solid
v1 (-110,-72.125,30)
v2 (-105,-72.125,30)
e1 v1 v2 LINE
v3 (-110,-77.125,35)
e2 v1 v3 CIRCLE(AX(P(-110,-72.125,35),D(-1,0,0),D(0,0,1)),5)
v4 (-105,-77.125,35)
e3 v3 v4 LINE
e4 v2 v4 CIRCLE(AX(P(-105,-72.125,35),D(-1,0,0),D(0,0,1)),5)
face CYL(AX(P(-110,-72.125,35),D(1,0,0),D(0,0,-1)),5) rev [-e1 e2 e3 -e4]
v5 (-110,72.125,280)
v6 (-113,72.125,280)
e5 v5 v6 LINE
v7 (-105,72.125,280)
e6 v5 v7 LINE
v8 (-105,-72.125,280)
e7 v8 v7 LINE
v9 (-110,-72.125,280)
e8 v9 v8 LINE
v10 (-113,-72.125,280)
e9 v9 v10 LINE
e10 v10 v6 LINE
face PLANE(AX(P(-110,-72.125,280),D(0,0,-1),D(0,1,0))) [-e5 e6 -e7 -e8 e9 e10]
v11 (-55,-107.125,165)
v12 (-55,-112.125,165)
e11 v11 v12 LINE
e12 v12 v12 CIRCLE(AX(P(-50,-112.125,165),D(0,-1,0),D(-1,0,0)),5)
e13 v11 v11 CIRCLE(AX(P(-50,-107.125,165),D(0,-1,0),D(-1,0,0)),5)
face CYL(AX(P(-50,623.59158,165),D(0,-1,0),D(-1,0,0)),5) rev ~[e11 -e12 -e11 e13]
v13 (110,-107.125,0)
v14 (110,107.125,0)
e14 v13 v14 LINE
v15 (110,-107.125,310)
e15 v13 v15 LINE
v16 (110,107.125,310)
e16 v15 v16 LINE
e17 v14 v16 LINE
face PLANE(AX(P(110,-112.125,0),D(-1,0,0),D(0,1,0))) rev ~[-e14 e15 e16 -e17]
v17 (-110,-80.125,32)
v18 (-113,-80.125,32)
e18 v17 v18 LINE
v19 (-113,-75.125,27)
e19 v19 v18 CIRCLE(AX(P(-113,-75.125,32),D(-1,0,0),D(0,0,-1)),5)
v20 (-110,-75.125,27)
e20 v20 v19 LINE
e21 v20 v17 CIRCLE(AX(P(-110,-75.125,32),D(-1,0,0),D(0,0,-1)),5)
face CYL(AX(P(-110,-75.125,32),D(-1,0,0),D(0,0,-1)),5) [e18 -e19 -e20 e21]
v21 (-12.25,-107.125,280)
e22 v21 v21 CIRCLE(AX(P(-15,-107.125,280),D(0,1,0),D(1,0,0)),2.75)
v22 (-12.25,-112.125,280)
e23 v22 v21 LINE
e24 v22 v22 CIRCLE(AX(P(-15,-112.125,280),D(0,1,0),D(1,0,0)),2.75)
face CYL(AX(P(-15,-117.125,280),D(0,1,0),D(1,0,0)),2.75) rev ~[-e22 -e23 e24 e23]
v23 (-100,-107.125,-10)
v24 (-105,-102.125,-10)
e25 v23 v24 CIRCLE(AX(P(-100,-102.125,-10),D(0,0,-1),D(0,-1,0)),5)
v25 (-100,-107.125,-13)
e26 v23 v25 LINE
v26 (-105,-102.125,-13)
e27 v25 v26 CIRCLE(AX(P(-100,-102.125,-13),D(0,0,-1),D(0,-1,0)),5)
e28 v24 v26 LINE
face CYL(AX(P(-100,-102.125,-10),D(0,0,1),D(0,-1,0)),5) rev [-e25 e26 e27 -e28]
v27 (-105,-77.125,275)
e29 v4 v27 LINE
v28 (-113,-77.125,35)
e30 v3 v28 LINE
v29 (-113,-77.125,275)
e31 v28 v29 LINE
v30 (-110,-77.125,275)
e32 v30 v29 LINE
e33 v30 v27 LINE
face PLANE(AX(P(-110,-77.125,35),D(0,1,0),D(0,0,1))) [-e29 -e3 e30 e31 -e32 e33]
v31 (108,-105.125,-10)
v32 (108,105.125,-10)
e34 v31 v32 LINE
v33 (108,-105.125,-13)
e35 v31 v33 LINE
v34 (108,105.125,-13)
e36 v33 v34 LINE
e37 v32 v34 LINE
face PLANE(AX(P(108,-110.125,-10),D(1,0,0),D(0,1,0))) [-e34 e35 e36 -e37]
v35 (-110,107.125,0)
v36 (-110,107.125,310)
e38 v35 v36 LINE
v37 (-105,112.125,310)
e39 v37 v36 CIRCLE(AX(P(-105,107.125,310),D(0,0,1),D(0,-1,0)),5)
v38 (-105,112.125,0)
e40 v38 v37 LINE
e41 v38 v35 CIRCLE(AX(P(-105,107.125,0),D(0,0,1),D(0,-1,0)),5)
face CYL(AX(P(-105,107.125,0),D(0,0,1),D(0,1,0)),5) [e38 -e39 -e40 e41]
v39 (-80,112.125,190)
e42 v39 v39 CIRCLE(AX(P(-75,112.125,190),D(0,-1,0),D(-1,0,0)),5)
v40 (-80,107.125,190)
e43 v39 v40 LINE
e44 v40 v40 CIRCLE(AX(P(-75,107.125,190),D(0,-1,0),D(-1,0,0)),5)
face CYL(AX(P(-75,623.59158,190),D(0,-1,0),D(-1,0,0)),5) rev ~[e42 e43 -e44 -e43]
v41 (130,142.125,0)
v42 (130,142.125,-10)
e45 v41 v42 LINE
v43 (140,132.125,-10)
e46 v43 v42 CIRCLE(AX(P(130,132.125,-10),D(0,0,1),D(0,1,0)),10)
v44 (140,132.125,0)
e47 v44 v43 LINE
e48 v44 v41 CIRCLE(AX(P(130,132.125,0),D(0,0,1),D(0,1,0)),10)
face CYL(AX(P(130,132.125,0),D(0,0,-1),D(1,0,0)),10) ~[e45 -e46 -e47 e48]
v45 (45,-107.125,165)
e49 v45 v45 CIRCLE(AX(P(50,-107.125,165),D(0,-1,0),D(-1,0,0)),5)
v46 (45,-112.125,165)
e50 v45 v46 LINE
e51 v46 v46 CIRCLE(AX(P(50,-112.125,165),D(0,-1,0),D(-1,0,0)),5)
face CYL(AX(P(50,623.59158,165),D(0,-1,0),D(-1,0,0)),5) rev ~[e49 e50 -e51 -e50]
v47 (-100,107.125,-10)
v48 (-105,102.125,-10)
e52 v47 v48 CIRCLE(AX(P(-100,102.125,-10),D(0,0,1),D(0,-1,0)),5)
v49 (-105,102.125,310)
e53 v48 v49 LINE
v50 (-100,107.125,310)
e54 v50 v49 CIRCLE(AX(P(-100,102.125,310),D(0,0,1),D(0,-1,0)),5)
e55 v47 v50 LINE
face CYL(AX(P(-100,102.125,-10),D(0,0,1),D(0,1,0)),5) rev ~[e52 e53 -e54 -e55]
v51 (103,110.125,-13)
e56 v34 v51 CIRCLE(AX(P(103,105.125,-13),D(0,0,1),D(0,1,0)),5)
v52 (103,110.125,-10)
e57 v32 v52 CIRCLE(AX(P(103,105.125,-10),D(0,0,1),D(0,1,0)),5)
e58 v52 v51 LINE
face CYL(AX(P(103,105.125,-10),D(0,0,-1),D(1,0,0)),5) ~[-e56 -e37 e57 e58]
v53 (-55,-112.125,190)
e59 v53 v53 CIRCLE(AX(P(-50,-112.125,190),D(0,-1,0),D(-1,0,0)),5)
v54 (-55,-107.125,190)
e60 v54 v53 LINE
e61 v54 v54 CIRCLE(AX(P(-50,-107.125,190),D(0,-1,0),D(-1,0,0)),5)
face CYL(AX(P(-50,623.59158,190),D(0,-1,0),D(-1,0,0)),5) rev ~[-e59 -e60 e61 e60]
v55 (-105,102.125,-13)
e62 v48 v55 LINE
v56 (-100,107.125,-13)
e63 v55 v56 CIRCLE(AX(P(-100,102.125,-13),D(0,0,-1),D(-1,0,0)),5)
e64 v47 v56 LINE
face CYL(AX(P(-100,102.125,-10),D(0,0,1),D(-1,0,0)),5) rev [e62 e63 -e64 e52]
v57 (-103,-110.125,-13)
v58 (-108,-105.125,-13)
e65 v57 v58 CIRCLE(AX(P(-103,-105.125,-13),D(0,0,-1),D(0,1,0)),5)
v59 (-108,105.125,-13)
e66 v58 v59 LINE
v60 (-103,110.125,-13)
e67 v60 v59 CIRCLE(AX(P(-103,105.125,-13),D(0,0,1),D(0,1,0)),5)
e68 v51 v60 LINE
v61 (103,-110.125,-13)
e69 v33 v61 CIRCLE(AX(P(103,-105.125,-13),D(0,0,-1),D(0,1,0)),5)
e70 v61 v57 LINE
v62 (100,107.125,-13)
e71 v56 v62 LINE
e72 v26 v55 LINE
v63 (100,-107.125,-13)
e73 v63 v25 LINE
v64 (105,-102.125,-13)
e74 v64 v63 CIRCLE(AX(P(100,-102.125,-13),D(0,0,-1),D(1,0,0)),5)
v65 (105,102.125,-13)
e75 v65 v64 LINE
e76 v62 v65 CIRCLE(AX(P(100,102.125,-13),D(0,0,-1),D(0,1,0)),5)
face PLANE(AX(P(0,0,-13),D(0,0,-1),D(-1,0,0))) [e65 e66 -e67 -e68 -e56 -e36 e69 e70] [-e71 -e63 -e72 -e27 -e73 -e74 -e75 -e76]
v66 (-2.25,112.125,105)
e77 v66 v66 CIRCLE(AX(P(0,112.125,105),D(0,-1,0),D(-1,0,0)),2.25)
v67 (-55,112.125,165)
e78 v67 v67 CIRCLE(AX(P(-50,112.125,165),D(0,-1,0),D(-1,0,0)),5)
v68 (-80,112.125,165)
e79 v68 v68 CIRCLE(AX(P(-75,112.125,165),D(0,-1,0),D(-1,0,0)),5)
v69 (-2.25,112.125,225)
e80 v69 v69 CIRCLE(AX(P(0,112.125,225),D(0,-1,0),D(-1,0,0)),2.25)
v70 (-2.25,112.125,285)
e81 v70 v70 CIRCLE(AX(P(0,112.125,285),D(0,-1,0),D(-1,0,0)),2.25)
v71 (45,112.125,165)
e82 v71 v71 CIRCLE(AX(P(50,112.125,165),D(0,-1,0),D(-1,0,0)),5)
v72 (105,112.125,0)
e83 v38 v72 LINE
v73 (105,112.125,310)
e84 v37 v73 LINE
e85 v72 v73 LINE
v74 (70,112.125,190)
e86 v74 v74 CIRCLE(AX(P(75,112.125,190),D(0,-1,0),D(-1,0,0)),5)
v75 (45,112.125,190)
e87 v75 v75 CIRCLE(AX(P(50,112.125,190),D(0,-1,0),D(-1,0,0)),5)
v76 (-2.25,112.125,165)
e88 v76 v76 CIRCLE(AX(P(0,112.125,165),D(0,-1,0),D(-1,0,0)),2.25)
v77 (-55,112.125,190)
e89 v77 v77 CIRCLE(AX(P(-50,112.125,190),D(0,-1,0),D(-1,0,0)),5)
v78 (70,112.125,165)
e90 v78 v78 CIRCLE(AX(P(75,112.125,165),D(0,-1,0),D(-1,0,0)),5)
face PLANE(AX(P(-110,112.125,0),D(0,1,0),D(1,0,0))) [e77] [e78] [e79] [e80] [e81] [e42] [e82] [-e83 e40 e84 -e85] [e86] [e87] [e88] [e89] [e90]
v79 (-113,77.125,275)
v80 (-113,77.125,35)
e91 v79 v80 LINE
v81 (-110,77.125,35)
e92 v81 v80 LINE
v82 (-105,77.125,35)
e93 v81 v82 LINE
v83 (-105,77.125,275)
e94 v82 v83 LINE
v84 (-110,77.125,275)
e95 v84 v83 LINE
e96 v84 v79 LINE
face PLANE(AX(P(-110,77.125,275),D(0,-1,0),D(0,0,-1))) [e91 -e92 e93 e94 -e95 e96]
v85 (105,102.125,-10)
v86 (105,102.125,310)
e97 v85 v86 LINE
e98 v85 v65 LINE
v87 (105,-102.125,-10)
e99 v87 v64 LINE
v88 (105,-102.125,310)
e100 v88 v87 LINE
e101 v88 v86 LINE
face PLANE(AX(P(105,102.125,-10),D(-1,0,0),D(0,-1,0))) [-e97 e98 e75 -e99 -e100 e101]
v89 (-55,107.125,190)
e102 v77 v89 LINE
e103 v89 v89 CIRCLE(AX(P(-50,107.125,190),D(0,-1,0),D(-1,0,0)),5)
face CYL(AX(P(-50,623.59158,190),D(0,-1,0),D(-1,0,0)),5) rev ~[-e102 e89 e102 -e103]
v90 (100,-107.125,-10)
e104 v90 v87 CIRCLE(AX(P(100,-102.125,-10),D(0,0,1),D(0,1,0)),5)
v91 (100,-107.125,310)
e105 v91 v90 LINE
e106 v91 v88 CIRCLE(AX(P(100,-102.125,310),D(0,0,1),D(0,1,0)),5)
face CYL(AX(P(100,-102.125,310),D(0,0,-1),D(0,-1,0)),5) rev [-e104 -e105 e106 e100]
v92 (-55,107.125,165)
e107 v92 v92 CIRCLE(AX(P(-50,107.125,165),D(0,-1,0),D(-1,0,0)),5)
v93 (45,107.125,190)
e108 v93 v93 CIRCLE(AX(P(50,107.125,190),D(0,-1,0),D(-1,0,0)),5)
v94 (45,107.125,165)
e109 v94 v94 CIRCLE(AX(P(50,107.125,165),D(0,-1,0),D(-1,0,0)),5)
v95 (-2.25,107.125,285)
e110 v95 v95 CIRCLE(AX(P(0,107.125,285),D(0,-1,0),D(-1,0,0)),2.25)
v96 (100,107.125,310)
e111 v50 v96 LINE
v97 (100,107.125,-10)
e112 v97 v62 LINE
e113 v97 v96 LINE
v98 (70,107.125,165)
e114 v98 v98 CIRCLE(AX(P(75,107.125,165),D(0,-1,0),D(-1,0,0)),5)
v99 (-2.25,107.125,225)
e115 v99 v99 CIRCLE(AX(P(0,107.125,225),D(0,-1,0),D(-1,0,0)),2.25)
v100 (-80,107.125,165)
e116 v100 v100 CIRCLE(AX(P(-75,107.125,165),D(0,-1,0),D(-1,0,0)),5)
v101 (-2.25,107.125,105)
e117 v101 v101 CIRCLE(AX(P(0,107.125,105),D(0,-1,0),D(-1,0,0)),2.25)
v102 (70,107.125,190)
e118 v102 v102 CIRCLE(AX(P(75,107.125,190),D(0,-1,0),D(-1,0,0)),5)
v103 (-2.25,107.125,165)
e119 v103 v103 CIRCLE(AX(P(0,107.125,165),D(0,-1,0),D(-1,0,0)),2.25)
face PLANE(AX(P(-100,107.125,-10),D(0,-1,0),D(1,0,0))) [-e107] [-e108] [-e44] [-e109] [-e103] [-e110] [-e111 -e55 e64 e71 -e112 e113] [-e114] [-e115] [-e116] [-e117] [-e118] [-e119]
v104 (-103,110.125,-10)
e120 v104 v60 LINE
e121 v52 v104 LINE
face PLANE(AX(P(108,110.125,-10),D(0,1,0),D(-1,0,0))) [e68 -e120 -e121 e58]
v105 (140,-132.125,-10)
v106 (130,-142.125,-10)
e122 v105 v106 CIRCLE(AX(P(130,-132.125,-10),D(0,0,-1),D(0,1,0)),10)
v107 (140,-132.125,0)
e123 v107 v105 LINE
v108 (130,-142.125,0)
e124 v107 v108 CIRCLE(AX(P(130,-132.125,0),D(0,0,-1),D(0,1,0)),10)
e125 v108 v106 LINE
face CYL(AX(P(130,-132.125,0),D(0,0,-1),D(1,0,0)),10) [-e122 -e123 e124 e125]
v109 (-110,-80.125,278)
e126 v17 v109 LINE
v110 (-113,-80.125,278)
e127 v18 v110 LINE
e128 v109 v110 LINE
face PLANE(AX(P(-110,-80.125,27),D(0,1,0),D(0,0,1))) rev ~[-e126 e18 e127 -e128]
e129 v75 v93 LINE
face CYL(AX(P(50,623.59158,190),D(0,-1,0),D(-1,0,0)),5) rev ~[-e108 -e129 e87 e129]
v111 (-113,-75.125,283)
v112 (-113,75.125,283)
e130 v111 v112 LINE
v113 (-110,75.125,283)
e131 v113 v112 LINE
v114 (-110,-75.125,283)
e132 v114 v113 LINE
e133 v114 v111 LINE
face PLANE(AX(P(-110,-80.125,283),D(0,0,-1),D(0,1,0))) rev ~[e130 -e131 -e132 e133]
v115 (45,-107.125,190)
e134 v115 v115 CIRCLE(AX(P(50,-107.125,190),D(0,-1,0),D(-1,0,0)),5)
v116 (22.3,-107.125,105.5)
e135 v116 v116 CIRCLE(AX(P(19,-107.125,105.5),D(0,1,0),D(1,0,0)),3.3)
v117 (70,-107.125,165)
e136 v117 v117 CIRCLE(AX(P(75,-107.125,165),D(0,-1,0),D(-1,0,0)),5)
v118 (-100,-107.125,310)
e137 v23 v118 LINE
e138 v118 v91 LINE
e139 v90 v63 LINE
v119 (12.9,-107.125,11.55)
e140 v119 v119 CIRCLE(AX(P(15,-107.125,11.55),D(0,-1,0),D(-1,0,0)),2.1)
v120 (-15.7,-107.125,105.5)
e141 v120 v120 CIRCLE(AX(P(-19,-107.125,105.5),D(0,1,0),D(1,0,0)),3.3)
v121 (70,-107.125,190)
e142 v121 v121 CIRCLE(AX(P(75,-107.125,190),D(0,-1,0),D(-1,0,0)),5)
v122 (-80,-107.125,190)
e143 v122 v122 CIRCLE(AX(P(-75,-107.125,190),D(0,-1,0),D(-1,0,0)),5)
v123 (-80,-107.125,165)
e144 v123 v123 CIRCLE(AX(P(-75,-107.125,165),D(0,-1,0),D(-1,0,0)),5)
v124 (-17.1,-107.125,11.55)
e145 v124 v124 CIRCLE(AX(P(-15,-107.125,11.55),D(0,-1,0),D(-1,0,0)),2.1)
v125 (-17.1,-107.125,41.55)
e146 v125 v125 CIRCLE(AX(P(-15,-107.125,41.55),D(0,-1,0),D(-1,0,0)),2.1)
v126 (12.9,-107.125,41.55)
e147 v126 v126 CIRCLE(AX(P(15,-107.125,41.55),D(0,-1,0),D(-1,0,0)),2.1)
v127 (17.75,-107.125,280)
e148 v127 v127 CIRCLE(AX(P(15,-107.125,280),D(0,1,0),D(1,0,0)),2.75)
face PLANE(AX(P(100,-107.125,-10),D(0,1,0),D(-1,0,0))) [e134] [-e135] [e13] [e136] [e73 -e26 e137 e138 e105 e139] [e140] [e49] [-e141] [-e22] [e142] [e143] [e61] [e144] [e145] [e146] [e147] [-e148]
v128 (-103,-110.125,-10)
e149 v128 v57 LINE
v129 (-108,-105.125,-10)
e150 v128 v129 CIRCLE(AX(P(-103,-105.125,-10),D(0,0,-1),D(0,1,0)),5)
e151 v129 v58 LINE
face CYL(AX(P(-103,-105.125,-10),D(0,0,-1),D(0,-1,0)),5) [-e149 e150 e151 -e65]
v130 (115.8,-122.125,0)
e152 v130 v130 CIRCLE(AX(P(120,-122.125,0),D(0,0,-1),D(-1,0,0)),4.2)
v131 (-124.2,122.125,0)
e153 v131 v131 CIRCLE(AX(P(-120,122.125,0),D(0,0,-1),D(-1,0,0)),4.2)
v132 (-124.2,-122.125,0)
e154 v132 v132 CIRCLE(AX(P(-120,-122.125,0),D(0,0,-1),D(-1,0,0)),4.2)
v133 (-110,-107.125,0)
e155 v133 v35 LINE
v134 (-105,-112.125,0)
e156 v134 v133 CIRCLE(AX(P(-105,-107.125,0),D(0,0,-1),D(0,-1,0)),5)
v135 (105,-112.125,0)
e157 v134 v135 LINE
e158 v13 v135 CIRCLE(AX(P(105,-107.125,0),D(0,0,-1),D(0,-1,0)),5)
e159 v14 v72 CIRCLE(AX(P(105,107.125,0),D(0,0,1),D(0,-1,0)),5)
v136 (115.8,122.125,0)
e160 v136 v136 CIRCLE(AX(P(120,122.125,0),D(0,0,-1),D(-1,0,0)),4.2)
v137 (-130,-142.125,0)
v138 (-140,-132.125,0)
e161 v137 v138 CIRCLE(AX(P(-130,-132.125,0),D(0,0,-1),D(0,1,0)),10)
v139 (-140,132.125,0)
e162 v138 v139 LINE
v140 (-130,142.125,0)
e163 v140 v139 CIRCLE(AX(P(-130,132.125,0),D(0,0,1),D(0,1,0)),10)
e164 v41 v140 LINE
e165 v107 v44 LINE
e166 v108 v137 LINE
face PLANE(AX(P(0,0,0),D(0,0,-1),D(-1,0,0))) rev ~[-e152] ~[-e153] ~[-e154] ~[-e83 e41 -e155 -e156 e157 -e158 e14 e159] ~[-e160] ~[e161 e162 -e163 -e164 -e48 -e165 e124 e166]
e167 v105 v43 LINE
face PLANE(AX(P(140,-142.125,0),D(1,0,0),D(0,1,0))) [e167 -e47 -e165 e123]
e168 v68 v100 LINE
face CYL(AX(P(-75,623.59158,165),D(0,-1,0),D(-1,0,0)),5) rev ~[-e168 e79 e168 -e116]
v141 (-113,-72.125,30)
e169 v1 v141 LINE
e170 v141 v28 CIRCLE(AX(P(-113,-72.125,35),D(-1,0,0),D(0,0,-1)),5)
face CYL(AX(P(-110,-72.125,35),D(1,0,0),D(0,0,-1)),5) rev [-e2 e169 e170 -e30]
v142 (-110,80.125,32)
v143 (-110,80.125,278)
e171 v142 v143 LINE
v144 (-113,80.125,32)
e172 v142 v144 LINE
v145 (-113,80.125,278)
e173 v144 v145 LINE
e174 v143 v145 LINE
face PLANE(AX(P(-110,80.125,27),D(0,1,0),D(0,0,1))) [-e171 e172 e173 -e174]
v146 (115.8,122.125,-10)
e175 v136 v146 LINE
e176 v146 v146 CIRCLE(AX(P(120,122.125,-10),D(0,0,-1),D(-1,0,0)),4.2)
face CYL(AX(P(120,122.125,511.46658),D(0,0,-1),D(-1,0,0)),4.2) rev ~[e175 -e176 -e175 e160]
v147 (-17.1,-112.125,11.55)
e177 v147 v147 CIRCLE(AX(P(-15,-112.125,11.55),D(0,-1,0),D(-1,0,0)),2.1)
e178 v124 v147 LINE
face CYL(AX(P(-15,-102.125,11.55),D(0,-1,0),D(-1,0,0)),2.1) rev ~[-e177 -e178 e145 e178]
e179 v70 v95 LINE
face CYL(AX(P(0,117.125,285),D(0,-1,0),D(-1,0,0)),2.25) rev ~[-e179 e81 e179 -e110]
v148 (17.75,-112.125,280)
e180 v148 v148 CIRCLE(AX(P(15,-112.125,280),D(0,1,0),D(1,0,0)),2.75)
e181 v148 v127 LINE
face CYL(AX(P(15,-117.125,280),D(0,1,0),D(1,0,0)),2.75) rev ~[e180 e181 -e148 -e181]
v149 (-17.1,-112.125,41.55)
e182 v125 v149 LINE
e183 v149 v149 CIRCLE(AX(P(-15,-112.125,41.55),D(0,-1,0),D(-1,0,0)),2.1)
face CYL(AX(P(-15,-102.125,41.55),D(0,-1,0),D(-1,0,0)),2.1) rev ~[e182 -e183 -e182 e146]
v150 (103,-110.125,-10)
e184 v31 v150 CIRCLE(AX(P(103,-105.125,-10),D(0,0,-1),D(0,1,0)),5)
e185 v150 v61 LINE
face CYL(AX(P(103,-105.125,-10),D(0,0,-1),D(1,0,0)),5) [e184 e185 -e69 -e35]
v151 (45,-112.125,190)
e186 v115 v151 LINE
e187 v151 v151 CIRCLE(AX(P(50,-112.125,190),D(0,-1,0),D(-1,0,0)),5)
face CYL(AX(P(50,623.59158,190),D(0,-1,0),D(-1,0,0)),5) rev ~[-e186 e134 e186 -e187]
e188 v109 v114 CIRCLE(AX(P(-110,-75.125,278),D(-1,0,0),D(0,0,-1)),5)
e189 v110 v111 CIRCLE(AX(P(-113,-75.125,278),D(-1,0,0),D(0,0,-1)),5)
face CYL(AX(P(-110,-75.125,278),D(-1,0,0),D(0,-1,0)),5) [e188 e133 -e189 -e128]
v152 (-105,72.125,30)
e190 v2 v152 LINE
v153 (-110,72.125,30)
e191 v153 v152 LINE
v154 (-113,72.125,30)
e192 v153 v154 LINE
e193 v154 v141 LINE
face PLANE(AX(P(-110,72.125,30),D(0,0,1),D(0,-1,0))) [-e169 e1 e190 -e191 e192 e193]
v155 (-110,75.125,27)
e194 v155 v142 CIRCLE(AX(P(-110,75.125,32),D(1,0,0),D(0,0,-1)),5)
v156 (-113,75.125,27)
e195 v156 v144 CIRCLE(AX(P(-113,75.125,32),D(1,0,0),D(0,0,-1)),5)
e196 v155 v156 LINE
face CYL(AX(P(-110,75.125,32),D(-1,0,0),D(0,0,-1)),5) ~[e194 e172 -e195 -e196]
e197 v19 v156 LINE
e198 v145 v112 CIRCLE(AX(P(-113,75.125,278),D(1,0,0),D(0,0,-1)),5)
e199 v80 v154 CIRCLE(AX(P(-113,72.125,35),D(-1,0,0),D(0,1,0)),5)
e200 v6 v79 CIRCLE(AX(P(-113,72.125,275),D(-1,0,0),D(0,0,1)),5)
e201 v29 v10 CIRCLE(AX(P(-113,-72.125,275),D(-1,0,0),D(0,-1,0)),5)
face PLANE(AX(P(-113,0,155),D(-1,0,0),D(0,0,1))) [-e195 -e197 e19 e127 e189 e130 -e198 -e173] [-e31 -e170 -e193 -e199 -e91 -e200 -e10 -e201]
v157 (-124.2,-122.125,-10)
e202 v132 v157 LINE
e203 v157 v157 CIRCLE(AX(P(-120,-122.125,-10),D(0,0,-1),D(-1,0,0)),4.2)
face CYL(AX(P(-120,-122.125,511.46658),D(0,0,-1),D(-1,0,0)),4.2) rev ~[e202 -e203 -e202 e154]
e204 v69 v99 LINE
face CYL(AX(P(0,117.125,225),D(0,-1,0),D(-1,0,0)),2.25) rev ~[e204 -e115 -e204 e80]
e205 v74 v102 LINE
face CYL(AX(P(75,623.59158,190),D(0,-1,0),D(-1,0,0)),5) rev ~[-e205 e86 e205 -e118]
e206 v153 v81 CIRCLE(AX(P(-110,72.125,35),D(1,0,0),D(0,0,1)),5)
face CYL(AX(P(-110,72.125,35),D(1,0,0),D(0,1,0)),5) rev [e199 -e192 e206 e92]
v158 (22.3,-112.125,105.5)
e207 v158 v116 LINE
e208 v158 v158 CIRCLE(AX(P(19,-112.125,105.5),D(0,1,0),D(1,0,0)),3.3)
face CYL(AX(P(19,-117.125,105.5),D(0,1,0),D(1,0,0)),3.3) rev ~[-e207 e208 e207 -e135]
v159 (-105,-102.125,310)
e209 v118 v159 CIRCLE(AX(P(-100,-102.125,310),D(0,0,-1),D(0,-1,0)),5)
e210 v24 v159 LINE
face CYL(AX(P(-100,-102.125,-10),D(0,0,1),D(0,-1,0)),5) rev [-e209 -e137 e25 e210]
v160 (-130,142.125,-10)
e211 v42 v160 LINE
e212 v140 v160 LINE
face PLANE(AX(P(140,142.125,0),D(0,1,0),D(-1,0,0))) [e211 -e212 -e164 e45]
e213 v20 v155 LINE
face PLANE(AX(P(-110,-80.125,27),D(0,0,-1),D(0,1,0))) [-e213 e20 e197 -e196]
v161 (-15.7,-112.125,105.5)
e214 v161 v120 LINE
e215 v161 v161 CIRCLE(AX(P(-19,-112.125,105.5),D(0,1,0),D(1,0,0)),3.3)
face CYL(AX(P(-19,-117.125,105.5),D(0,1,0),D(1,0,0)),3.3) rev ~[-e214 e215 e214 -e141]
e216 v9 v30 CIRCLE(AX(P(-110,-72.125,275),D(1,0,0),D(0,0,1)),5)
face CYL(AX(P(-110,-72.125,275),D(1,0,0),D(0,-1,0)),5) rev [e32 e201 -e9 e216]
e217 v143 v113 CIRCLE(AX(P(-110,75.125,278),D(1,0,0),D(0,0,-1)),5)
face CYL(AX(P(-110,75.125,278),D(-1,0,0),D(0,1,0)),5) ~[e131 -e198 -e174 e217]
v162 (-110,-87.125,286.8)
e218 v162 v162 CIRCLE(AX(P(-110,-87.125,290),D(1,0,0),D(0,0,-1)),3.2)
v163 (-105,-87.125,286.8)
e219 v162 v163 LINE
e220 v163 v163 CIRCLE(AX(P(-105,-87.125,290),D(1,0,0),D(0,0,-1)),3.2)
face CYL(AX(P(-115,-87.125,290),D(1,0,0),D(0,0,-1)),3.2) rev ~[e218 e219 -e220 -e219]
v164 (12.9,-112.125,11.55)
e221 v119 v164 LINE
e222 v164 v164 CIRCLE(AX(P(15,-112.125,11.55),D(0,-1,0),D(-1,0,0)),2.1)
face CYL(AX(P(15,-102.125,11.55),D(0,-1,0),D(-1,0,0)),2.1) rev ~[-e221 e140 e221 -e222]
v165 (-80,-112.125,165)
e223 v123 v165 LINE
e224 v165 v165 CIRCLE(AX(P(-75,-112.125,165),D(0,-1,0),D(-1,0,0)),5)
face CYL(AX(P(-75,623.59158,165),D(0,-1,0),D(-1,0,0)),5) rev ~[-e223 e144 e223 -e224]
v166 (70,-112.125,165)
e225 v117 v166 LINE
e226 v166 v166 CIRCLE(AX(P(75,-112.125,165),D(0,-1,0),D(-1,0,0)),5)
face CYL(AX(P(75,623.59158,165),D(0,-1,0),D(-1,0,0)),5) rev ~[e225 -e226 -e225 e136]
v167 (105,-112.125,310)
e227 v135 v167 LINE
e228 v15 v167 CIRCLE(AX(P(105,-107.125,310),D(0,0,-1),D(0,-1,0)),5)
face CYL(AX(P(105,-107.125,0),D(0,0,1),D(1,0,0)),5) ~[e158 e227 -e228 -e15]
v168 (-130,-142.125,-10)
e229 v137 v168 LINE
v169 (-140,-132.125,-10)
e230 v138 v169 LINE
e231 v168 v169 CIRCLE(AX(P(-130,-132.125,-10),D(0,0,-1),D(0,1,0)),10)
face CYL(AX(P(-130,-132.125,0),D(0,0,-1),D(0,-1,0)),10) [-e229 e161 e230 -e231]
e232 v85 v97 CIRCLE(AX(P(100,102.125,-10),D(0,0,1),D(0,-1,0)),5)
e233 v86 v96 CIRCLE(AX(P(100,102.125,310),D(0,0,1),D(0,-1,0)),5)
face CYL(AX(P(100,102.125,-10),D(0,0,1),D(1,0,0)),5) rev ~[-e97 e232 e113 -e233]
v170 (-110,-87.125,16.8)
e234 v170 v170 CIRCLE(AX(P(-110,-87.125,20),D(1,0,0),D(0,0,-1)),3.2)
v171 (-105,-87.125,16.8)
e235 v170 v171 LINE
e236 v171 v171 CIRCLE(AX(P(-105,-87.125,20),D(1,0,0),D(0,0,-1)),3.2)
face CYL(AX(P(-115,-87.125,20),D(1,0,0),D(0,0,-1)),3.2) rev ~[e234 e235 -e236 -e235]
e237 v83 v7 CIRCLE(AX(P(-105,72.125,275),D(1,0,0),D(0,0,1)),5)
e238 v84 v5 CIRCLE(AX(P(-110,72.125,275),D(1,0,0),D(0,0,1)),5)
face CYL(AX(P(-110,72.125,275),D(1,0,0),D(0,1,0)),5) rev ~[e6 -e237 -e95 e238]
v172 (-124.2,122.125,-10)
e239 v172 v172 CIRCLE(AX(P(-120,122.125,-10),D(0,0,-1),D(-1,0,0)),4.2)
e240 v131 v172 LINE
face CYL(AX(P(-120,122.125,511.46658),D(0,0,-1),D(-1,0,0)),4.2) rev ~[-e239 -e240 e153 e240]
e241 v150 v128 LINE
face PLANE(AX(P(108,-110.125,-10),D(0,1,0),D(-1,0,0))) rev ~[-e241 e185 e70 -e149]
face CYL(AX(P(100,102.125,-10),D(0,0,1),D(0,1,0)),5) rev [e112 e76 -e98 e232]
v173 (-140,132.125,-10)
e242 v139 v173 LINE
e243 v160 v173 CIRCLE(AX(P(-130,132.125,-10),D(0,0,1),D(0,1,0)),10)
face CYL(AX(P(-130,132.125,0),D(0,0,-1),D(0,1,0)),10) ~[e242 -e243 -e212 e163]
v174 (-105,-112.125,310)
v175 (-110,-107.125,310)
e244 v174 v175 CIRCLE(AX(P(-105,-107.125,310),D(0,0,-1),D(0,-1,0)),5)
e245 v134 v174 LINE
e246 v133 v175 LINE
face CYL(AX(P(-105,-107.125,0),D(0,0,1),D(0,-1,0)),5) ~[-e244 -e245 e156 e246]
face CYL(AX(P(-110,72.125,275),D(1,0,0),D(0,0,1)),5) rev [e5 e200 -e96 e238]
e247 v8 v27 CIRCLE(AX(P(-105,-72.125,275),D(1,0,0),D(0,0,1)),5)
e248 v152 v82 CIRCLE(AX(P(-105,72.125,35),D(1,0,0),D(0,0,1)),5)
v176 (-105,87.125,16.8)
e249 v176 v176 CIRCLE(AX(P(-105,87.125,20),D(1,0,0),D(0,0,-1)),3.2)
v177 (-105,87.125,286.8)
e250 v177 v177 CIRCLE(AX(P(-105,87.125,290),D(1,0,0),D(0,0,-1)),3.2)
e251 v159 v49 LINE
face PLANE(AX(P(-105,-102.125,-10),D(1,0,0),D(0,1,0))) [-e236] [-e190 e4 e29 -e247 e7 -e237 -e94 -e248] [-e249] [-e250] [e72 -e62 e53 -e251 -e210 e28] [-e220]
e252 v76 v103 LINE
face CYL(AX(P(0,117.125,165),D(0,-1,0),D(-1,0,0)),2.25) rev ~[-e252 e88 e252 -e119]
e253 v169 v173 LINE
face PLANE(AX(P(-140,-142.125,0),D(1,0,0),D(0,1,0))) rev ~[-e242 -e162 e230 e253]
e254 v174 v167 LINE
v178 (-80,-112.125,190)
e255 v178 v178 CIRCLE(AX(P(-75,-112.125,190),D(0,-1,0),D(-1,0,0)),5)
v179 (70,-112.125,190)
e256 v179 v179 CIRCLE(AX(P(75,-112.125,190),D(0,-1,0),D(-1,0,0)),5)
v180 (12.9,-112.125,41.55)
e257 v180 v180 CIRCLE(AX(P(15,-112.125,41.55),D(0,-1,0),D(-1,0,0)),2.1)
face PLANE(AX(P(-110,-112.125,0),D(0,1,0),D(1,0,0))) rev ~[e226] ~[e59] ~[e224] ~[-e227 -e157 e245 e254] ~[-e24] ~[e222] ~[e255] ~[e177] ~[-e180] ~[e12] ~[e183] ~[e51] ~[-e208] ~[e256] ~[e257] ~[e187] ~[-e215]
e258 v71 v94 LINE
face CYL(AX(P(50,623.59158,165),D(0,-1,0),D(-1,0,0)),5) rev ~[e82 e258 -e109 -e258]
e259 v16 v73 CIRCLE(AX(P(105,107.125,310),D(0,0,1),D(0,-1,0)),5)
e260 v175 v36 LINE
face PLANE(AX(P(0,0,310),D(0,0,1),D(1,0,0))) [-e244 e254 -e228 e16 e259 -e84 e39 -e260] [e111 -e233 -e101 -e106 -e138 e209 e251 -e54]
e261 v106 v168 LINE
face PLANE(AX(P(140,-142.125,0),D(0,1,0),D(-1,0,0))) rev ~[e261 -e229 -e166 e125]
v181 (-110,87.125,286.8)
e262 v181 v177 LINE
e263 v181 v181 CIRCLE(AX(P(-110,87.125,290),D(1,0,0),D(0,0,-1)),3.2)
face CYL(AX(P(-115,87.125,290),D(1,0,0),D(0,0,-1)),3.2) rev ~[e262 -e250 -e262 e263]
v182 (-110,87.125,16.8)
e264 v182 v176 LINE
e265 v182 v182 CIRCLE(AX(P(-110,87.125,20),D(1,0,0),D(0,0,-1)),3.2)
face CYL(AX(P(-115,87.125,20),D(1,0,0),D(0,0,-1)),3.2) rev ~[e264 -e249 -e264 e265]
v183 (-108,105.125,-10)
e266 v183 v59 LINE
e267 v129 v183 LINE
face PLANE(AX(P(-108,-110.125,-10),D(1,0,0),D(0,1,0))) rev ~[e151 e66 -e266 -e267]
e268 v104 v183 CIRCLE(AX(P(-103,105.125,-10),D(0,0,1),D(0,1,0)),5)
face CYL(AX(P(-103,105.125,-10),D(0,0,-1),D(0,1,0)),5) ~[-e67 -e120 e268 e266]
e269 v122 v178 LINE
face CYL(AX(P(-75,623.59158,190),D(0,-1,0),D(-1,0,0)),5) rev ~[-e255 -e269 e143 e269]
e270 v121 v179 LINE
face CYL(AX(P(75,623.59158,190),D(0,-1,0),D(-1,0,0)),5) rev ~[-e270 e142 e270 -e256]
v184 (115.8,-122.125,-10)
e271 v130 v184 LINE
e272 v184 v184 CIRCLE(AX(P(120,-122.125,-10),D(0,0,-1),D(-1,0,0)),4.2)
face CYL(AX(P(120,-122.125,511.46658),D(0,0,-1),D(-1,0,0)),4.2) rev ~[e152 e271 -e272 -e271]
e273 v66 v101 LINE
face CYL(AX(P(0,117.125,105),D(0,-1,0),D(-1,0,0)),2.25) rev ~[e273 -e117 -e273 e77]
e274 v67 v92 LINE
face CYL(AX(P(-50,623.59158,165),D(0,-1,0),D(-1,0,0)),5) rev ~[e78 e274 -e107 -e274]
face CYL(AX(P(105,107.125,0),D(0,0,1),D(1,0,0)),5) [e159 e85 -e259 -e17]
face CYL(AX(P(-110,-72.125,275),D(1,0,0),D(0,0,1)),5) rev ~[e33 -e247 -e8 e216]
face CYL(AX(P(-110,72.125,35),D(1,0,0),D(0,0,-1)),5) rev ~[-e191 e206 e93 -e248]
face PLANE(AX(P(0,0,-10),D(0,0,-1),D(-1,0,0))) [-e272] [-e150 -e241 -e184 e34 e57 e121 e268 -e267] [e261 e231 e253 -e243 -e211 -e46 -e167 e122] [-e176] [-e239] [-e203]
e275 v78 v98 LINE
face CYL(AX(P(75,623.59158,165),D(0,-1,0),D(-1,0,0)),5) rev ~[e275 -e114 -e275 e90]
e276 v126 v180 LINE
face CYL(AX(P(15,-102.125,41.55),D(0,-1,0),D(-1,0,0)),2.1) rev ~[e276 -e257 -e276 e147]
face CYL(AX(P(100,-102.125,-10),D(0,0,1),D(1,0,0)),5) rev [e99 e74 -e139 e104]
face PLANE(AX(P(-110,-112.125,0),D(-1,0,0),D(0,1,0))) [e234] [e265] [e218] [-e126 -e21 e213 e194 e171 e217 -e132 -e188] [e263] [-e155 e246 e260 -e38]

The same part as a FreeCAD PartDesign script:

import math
import FreeCAD as App
import Part
import Sketcher


def edges_at(feature, points):
    """Names of the edges that pass closest to the given points."""
    edges = feature.Shape.Edges
    near = lambda p: min(range(len(edges)), key=lambda i: edges[i].distToShape(Part.Vertex(*p))[0])
    return sorted({f"Edge{near(p) + 1}" for p in points})

doc = App.newDocument("Part")
body = doc.addObject("PartDesign::Body", "Body")

# Sketch on XY plane
sketch1 = body.newObject("Sketcher::SketchObject", "Sketch")
sketch1.AttachmentSupport = (doc.getObject("XY_Plane"), [""])
sketch1.MapMode = "FlatFace"
sketch1.addGeometry([
    Part.LineSegment(App.Vector(-110, 112, 0), App.Vector(-110, -112, 0)),  # 0
    Part.LineSegment(App.Vector(-110, -112, 0), App.Vector(110, -112, 0)),  # 1
    Part.LineSegment(App.Vector(110, -112, 0), App.Vector(110, 112, 0)),  # 2
    Part.LineSegment(App.Vector(110, 112, 0), App.Vector(-110, 112, 0)),  # 3
    Part.LineSegment(App.Vector(105, -107, 0), App.Vector(-105, -107, 0)),  # 4
    Part.LineSegment(App.Vector(-105, -107, 0), App.Vector(-105, 107, 0)),  # 5
    Part.LineSegment(App.Vector(-105, 107, 0), App.Vector(105, 107, 0)),  # 6
    Part.LineSegment(App.Vector(105, 107, 0), App.Vector(105, -107, 0)),  # 7
], False)
sketch1.addConstraint([
    Sketcher.Constraint("Coincident", 0, 2, 1, 1),
    Sketcher.Constraint("Coincident", 1, 2, 2, 1),
    Sketcher.Constraint("Coincident", 2, 2, 3, 1),
    Sketcher.Constraint("Coincident", 3, 2, 0, 1),
    Sketcher.Constraint("Coincident", 4, 2, 5, 1),
    Sketcher.Constraint("Coincident", 5, 2, 6, 1),
    Sketcher.Constraint("Coincident", 6, 2, 7, 1),
    Sketcher.Constraint("Coincident", 7, 2, 4, 1),
    Sketcher.Constraint("Vertical", 0),
    Sketcher.Constraint("Horizontal", 1),
    Sketcher.Constraint("Vertical", 2),
    Sketcher.Constraint("Horizontal", 3),
    Sketcher.Constraint("Horizontal", 4),
    Sketcher.Constraint("Vertical", 5),
    Sketcher.Constraint("Horizontal", 6),
    Sketcher.Constraint("Vertical", 7),
    Sketcher.Constraint("Symmetric", 0, 2, 2, 2, -1, 1),
    Sketcher.Constraint("Symmetric", 4, 2, 6, 2, -1, 1),
    Sketcher.Constraint("DistanceX", 1, 1, 1, 2, 220.0),
    Sketcher.Constraint("DistanceX", 4, 2, 4, 1, 210.0),
    Sketcher.Constraint("DistanceY", 0, 2, 4, 2, 5.0),
    Sketcher.Constraint("DistanceY", 0, 2, 0, 1, 224.25),
])
pad1 = body.newObject("PartDesign::Pad", "Pad")
pad1.Profile = sketch1
pad1.Length = 310

# Sketch on XY plane
sketch2 = body.newObject("Sketcher::SketchObject", "Sketch001")
sketch2.AttachmentSupport = (doc.getObject("XY_Plane"), [""])
sketch2.MapMode = "FlatFace"
sketch2.addGeometry([
    Part.LineSegment(App.Vector(140, 142, 0), App.Vector(140, -142, 0)),  # 0
    Part.LineSegment(App.Vector(140, -142, 0), App.Vector(-140, -142, 0)),  # 1
    Part.LineSegment(App.Vector(-140, -142, 0), App.Vector(-140, 142, 0)),  # 2
    Part.LineSegment(App.Vector(-140, 142, 0), App.Vector(140, 142, 0)),  # 3
    Part.LineSegment(App.Vector(-105, -107, 0), App.Vector(105, -107, 0)),  # 4
    Part.LineSegment(App.Vector(105, -107, 0), App.Vector(105, 107, 0)),  # 5
    Part.LineSegment(App.Vector(105, 107, 0), App.Vector(-105, 107, 0)),  # 6
    Part.LineSegment(App.Vector(-105, 107, 0), App.Vector(-105, -107, 0)),  # 7
], False)
sketch2.addConstraint([
    Sketcher.Constraint("Coincident", 0, 2, 1, 1),
    Sketcher.Constraint("Coincident", 1, 2, 2, 1),
    Sketcher.Constraint("Coincident", 2, 2, 3, 1),
    Sketcher.Constraint("Coincident", 3, 2, 0, 1),
    Sketcher.Constraint("Coincident", 4, 2, 5, 1),
    Sketcher.Constraint("Coincident", 5, 2, 6, 1),
    Sketcher.Constraint("Coincident", 6, 2, 7, 1),
    Sketcher.Constraint("Coincident", 7, 2, 4, 1),
    Sketcher.Constraint("Vertical", 0),
    Sketcher.Constraint("Horizontal", 1),
    Sketcher.Constraint("Vertical", 2),
    Sketcher.Constraint("Horizontal", 3),
    Sketcher.Constraint("Horizontal", 4),
    Sketcher.Constraint("Vertical", 5),
    Sketcher.Constraint("Horizontal", 6),
    Sketcher.Constraint("Vertical", 7),
    Sketcher.Constraint("Symmetric", 0, 2, 2, 2, -1, 1),
    Sketcher.Constraint("Symmetric", 4, 2, 6, 2, -1, 1),
    Sketcher.Constraint("DistanceX", 1, 2, 1, 1, 280.0),
    Sketcher.Constraint("DistanceX", 4, 1, 4, 2, 210.0),
    Sketcher.Constraint("DistanceY", 0, 2, 4, 2, 35.0),
    Sketcher.Constraint("DistanceY", 0, 2, 0, 1, 284.25),
])
pad2 = body.newObject("PartDesign::Pad", "Pad001")
pad2.Profile = sketch2
pad2.Length = 10
pad2.Reversed = True
doc.recompute()

fillet = body.newObject("PartDesign::Fillet", "Fillet")
fillet.Base = (pad2, edges_at(pad2, [
    (110, -112.125, 155),
    (-110, -112.125, 155),
    (-110, 112.125, 155),
    (110, 112.125, 155),
]))
fillet.Radius = 5
doc.recompute()

fillet2 = body.newObject("PartDesign::Fillet", "Fillet001")
fillet2.Base = (fillet, edges_at(fillet, [
    (105, -107.125, 150),
    (105, 107.125, 150),
    (-105, 107.125, 150),
    (-105, -107.125, 150),
]))
fillet2.Radius = 5
doc.recompute()

fillet3 = body.newObject("PartDesign::Fillet", "Fillet002")
fillet3.Base = (fillet2, edges_at(fillet2, [
    (-140, -142.125, -5),
    (-140, 142.125, -5),
    (140, 142.125, -5),
    (140, -142.125, -5),
]))
fillet3.Radius = 10

# Sketch on XY plane
sketch3 = body.newObject("Sketcher::SketchObject", "Sketch002")
sketch3.AttachmentSupport = (doc.getObject("XY_Plane"), [""])
sketch3.MapMode = "FlatFace"
sketch3.addGeometry([
    Part.Circle(App.Vector(120, 122.1, 0), App.Vector(0, 0, 1), 4.2),
    Part.Circle(App.Vector(120, -122.1, 0), App.Vector(0, 0, 1), 4.2),
    Part.Circle(App.Vector(-120, -122.1, 0), App.Vector(0, 0, 1), 4.2),
    Part.Circle(App.Vector(-120, 122.1, 0), App.Vector(0, 0, 1), 4.2),
], False)
sketch3.addConstraint([
    Sketcher.Constraint("Equal", 0, 1),
    Sketcher.Constraint("Equal", 1, 2),
    Sketcher.Constraint("Equal", 2, 3),
    Sketcher.Constraint("Symmetric", 0, 3, 2, 3, -1, 1),
    Sketcher.Constraint("Symmetric", 1, 3, 3, 3, -1, 1),
    Sketcher.Constraint("Symmetric", 1, 3, 2, 3, -2),
    Sketcher.Constraint("Diameter", 0, 8.4),
    Sketcher.Constraint("DistanceX", -1, 1, 0, 3, 120.0),
    Sketcher.Constraint("DistanceY", 1, 3, 0, 3, 244.25),
])
doc.recompute()
hole = body.newObject("PartDesign::Hole", "Hole")
hole.Profile = sketch3
hole.ThreadType = "None"
hole.Diameter = 8.4
hole.DepthType = "ThroughAll"

# Sketch on XZ plane
sketch4 = body.newObject("Sketcher::SketchObject", "Sketch003")
sketch4.AttachmentSupport = (doc.getObject("XZ_Plane"), [""])
sketch4.MapMode = "FlatFace"
sketch4.AttachmentOffset = App.Placement(App.Vector(0, 0, -112.125), App.Rotation())
sketch4.addGeometry([
    Part.Circle(App.Vector(-75, 165, 0), App.Vector(0, 0, 1), 5),  # 0
    Part.Circle(App.Vector(-50, 165, 0), App.Vector(0, 0, 1), 5),  # 1
    Part.Circle(App.Vector(-50, 190, 0), App.Vector(0, 0, 1), 5),  # 2
    Part.Circle(App.Vector(-75, 190, 0), App.Vector(0, 0, 1), 5),  # 3
    Part.Circle(App.Vector(50, 190, 0), App.Vector(0, 0, 1), 5),  # 4
    Part.Circle(App.Vector(50, 165, 0), App.Vector(0, 0, 1), 5),  # 5
    Part.Circle(App.Vector(75, 165, 0), App.Vector(0, 0, 1), 5),  # 6
    Part.Circle(App.Vector(75, 190, 0), App.Vector(0, 0, 1), 5),  # 7
], False)
sketch4.addConstraint([
    Sketcher.Constraint("Equal", 0, 1),
    Sketcher.Constraint("Equal", 1, 2),
    Sketcher.Constraint("Equal", 2, 3),
    Sketcher.Constraint("Equal", 3, 4),
    Sketcher.Constraint("Equal", 4, 5),
    Sketcher.Constraint("Equal", 5, 6),
    Sketcher.Constraint("Equal", 6, 7),
    Sketcher.Constraint("Symmetric", 2, 3, 4, 3, -2),
    Sketcher.Constraint("Symmetric", 1, 3, 5, 3, -2),
    Sketcher.Constraint("Symmetric", 0, 3, 6, 3, -2),
    Sketcher.Constraint("Symmetric", 3, 3, 7, 3, -2),
    Sketcher.Constraint("Horizontal", 0, 3, 1, 3),
    Sketcher.Constraint("Horizontal", 2, 3, 3, 3),
    Sketcher.Constraint("Vertical", 1, 3, 2, 3),
    Sketcher.Constraint("Vertical", 0, 3, 3, 3),
    Sketcher.Constraint("Diameter", 0, 10.0),
    Sketcher.Constraint("DistanceX", 0, 3, -1, 1, 75.0),
    Sketcher.Constraint("DistanceY", -1, 1, 0, 3, 165.0),
    Sketcher.Constraint("DistanceX", 1, 3, -1, 1, 50.0),
    Sketcher.Constraint("DistanceY", -1, 1, 2, 3, 190.0),
])
doc.recompute()
hole2 = body.newObject("PartDesign::Hole", "Hole001")
hole2.Profile = sketch4
hole2.ThreadType = "None"
hole2.Diameter = 10
hole2.DepthType = "ThroughAll"
hole2.Reversed = True

# Sketch on XZ plane
sketch5 = body.newObject("Sketcher::SketchObject", "Sketch004")
sketch5.AttachmentSupport = (doc.getObject("XZ_Plane"), [""])
sketch5.MapMode = "FlatFace"
sketch5.AttachmentOffset = App.Placement(App.Vector(0, 0, -112.125), App.Rotation())
sketch5.addGeometry([
    Part.Circle(App.Vector(0, 105, 0), App.Vector(0, 0, 1), 2.2),
    Part.Circle(App.Vector(0, 165, 0), App.Vector(0, 0, 1), 2.2),
    Part.Circle(App.Vector(0, 225, 0), App.Vector(0, 0, 1), 2.2),
    Part.Circle(App.Vector(0, 285, 0), App.Vector(0, 0, 1), 2.2),
], False)
sketch5.addConstraint([
    Sketcher.Constraint("Equal", 0, 1),
    Sketcher.Constraint("Equal", 1, 2),
    Sketcher.Constraint("Equal", 2, 3),
    Sketcher.Constraint("PointOnObject", 0, 3, -2),
    Sketcher.Constraint("PointOnObject", 1, 3, -2),
    Sketcher.Constraint("PointOnObject", 2, 3, -2),
    Sketcher.Constraint("PointOnObject", 3, 3, -2),
    Sketcher.Constraint("Diameter", 0, 4.5),
    Sketcher.Constraint("DistanceY", -1, 1, 0, 3, 105.0),
    Sketcher.Constraint("DistanceY", -1, 1, 1, 3, 165.0),
    Sketcher.Constraint("DistanceY", -1, 1, 2, 3, 225.0),
    Sketcher.Constraint("DistanceY", -1, 1, 3, 3, 285.0),
])
doc.recompute()
hole3 = body.newObject("PartDesign::Hole", "Hole002")
hole3.Profile = sketch5
hole3.ThreadType = "None"
hole3.Diameter = 4.5
hole3.DepthType = "Dimension"
hole3.Depth = 5
hole3.DrillPoint = "Flat"
hole3.Reversed = True

# Sketch on XZ plane
sketch6 = body.newObject("Sketcher::SketchObject", "Sketch005")
sketch6.AttachmentSupport = (doc.getObject("XZ_Plane"), [""])
sketch6.MapMode = "FlatFace"
sketch6.AttachmentOffset = App.Placement(App.Vector(0, 0, 112.125), App.Rotation())
sketch6.addGeometry([
    Part.Circle(App.Vector(-19, 105.5, 0), App.Vector(0, 0, 1), 3.3),
    Part.Circle(App.Vector(19, 105.5, 0), App.Vector(0, 0, 1), 3.3),
], False)
sketch6.addConstraint([
    Sketcher.Constraint("Equal", 0, 1),
    Sketcher.Constraint("Symmetric", 0, 3, 1, 3, -2),
    Sketcher.Constraint("Diameter", 0, 6.6),
    Sketcher.Constraint("DistanceX", 0, 3, -1, 1, 19.0),
    Sketcher.Constraint("DistanceY", -1, 1, 0, 3, 105.5),
])
doc.recompute()
hole4 = body.newObject("PartDesign::Hole", "Hole003")
hole4.Profile = sketch6
hole4.ThreadType = "None"
hole4.Diameter = 6.6
hole4.DepthType = "Dimension"
hole4.Depth = 5
hole4.DrillPoint = "Flat"

# Sketch on XZ plane
sketch7 = body.newObject("Sketcher::SketchObject", "Sketch006")
sketch7.AttachmentSupport = (doc.getObject("XZ_Plane"), [""])
sketch7.MapMode = "FlatFace"
sketch7.AttachmentOffset = App.Placement(App.Vector(0, 0, 112.125), App.Rotation())
sketch7.addGeometry([
    Part.Circle(App.Vector(-15, 280, 0), App.Vector(0, 0, 1), 2.8),
    Part.Circle(App.Vector(15, 280, 0), App.Vector(0, 0, 1), 2.8),
], False)
sketch7.addConstraint([
    Sketcher.Constraint("Equal", 0, 1),
    Sketcher.Constraint("Symmetric", 0, 3, 1, 3, -2),
    Sketcher.Constraint("Diameter", 0, 5.5),
    Sketcher.Constraint("DistanceX", 0, 3, -1, 1, 15.0),
    Sketcher.Constraint("DistanceY", -1, 1, 0, 3, 280.0),
])
doc.recompute()
hole5 = body.newObject("PartDesign::Hole", "Hole004")
hole5.Profile = sketch7
hole5.ThreadType = "None"
hole5.Diameter = 5.5
hole5.DepthType = "Dimension"
hole5.Depth = 5
hole5.DrillPoint = "Flat"

# Sketch on YZ plane
sketch8 = body.newObject("Sketcher::SketchObject", "Sketch007")
sketch8.AttachmentSupport = (doc.getObject("YZ_Plane"), [""])
sketch8.MapMode = "FlatFace"
sketch8.AttachmentOffset = App.Placement(App.Vector(0, 0, -110), App.Rotation())
sketch8.addGeometry([
    Part.LineSegment(App.Vector(77, 30, 0), App.Vector(-77, 30, 0)),
    Part.LineSegment(App.Vector(-77, 30, 0), App.Vector(-77, 280, 0)),
    Part.LineSegment(App.Vector(-77, 280, 0), App.Vector(77, 280, 0)),
    Part.LineSegment(App.Vector(77, 280, 0), App.Vector(77, 30, 0)),
], False)
sketch8.addConstraint([
    Sketcher.Constraint("Coincident", 0, 2, 1, 1),
    Sketcher.Constraint("Coincident", 1, 2, 2, 1),
    Sketcher.Constraint("Coincident", 2, 2, 3, 1),
    Sketcher.Constraint("Coincident", 3, 2, 0, 1),
    Sketcher.Constraint("Horizontal", 0),
    Sketcher.Constraint("Vertical", 1),
    Sketcher.Constraint("Horizontal", 2),
    Sketcher.Constraint("Vertical", 3),
    Sketcher.Constraint("DistanceY", 1, 1, 1, 2, 250.0),
    Sketcher.Constraint("DistanceY", -1, 1, 0, 2, 30.0),
    Sketcher.Constraint("DistanceX", 0, 2, 0, 1, 154.25),
    Sketcher.Constraint("DistanceX", 0, 2, -1, 1, 77.125),
])
pocket1 = body.newObject("PartDesign::Pocket", "Pocket")
pocket1.Profile = sketch8
pocket1.Type = "UpToFirst"
pocket1.Reversed = True
doc.recompute()

fillet4 = body.newObject("PartDesign::Fillet", "Fillet003")
fillet4.Base = (pocket1, edges_at(pocket1, [
    (-107.5, -77.125, 280),
    (-107.5, 77.125, 280),
    (-107.5, 77.125, 30),
    (-107.5, -77.125, 30),
]))
fillet4.Radius = 5

# Sketch on YZ plane
sketch9 = body.newObject("Sketcher::SketchObject", "Sketch008")
sketch9.AttachmentSupport = (doc.getObject("YZ_Plane"), [""])
sketch9.MapMode = "FlatFace"
sketch9.AttachmentOffset = App.Placement(App.Vector(0, 0, -110), App.Rotation())
sketch9.addGeometry([
    Part.LineSegment(App.Vector(80, 27, 0), App.Vector(-80, 27, 0)),  # 0
    Part.LineSegment(App.Vector(-80, 27, 0), App.Vector(-80, 283, 0)),  # 1
    Part.LineSegment(App.Vector(-80, 283, 0), App.Vector(80, 283, 0)),  # 2
    Part.LineSegment(App.Vector(80, 283, 0), App.Vector(80, 27, 0)),  # 3
    Part.LineSegment(App.Vector(72, 280, 0), App.Vector(-72, 280, 0)),  # 4
    Part.ArcOfCircle(Part.Circle(App.Vector(-72, 275, 0), App.Vector(0, 0, 1), 5), math.radians(90), math.radians(180)),  # 5
    Part.LineSegment(App.Vector(-77, 275, 0), App.Vector(-77, 35, 0)),  # 6
    Part.ArcOfCircle(Part.Circle(App.Vector(-72, 35, 0), App.Vector(0, 0, 1), 5), math.radians(180), math.radians(270)),  # 7
    Part.LineSegment(App.Vector(-72, 30, 0), App.Vector(72, 30, 0)),  # 8
    Part.ArcOfCircle(Part.Circle(App.Vector(72, 35, 0), App.Vector(0, 0, 1), 5), math.radians(-90), math.radians(0)),  # 9
    Part.LineSegment(App.Vector(77, 35, 0), App.Vector(77, 275, 0)),  # 10
    Part.ArcOfCircle(Part.Circle(App.Vector(72, 275, 0), App.Vector(0, 0, 1), 5), math.radians(0), math.radians(90)),  # 11
], False)
sketch9.addConstraint([
    Sketcher.Constraint("Coincident", 0, 2, 1, 1),
    Sketcher.Constraint("Coincident", 1, 2, 2, 1),
    Sketcher.Constraint("Coincident", 2, 2, 3, 1),
    Sketcher.Constraint("Coincident", 3, 2, 0, 1),
    Sketcher.Constraint("Tangent", 4, 2, 5, 1),
    Sketcher.Constraint("Tangent", 5, 2, 6, 1),
    Sketcher.Constraint("Tangent", 6, 2, 7, 1),
    Sketcher.Constraint("Tangent", 7, 2, 8, 1),
    Sketcher.Constraint("Tangent", 8, 2, 9, 1),
    Sketcher.Constraint("Tangent", 9, 2, 10, 1),
    Sketcher.Constraint("Tangent", 10, 2, 11, 1),
    Sketcher.Constraint("Tangent", 11, 2, 4, 1),
    Sketcher.Constraint("Horizontal", 0),
    Sketcher.Constraint("Vertical", 1),
    Sketcher.Constraint("Horizontal", 2),
    Sketcher.Constraint("Vertical", 3),
    Sketcher.Constraint("Horizontal", 4),
    Sketcher.Constraint("Vertical", 6),
    Sketcher.Constraint("Horizontal", 8),
    Sketcher.Constraint("Vertical", 10),
    Sketcher.Constraint("Equal", 5, 7),
    Sketcher.Constraint("Equal", 7, 9),
    Sketcher.Constraint("Equal", 9, 11),
    Sketcher.Constraint("Radius", 5, 5.0),
    Sketcher.Constraint("DistanceY", 1, 1, 1, 2, 256.0),
    Sketcher.Constraint("DistanceY", 6, 2, 6, 1, 240.0),
    Sketcher.Constraint("DistanceY", -1, 1, 5, 3, 275.0),
    Sketcher.Constraint("DistanceY", -1, 1, 0, 2, 27.0),
    Sketcher.Constraint("DistanceX", 0, 2, 7, 3, 8.0),
    Sketcher.Constraint("DistanceX", 11, 3, 2, 2, 8.0),
    Sketcher.Constraint("DistanceX", 0, 2, 0, 1, 160.25),
    Sketcher.Constraint("DistanceX", 5, 3, -1, 1, 72.125),
])
pad3 = body.newObject("PartDesign::Pad", "Pad002")
pad3.Profile = sketch9
pad3.Length = 3
pad3.Reversed = True
doc.recompute()

fillet5 = body.newObject("PartDesign::Fillet", "Fillet004")
fillet5.Base = (pad3, edges_at(pad3, [
    (-111.5, 80.125, 27),
    (-111.5, -80.125, 27),
    (-111.5, -80.125, 283),
    (-111.5, 80.125, 283),
]))
fillet5.Radius = 5

# Sketch on XY plane
sketch10 = body.newObject("Sketcher::SketchObject", "Sketch009")
sketch10.AttachmentSupport = (doc.getObject("XY_Plane"), [""])
sketch10.MapMode = "FlatFace"
sketch10.AttachmentOffset = App.Placement(App.Vector(0, 0, -10), App.Rotation())
sketch10.addGeometry([
    Part.LineSegment(App.Vector(108, 110, 0), App.Vector(108, -110, 0)),  # 0
    Part.LineSegment(App.Vector(108, -110, 0), App.Vector(-108, -110, 0)),  # 1
    Part.LineSegment(App.Vector(-108, -110, 0), App.Vector(-108, 110, 0)),  # 2
    Part.LineSegment(App.Vector(-108, 110, 0), App.Vector(108, 110, 0)),  # 3
    Part.LineSegment(App.Vector(-100, -107, 0), App.Vector(100, -107, 0)),  # 4
    Part.ArcOfCircle(Part.Circle(App.Vector(100, -102, 0), App.Vector(0, 0, 1), 5), math.radians(-90), math.radians(0)),  # 5
    Part.LineSegment(App.Vector(105, -102, 0), App.Vector(105, 102, 0)),  # 6
    Part.ArcOfCircle(Part.Circle(App.Vector(100, 102, 0), App.Vector(0, 0, 1), 5), math.radians(0), math.radians(90)),  # 7
    Part.LineSegment(App.Vector(100, 107, 0), App.Vector(-100, 107, 0)),  # 8
    Part.ArcOfCircle(Part.Circle(App.Vector(-100, 102, 0), App.Vector(0, 0, 1), 5), math.radians(90), math.radians(180)),  # 9
    Part.LineSegment(App.Vector(-105, 102, 0), App.Vector(-105, -102, 0)),  # 10
    Part.ArcOfCircle(Part.Circle(App.Vector(-100, -102, 0), App.Vector(0, 0, 1), 5), math.radians(180), math.radians(270)),  # 11
], False)
sketch10.addConstraint([
    Sketcher.Constraint("Coincident", 0, 2, 1, 1),
    Sketcher.Constraint("Coincident", 1, 2, 2, 1),
    Sketcher.Constraint("Coincident", 2, 2, 3, 1),
    Sketcher.Constraint("Coincident", 3, 2, 0, 1),
    Sketcher.Constraint("Tangent", 4, 2, 5, 1),
    Sketcher.Constraint("Tangent", 5, 2, 6, 1),
    Sketcher.Constraint("Tangent", 6, 2, 7, 1),
    Sketcher.Constraint("Tangent", 7, 2, 8, 1),
    Sketcher.Constraint("Tangent", 8, 2, 9, 1),
    Sketcher.Constraint("Tangent", 9, 2, 10, 1),
    Sketcher.Constraint("Tangent", 10, 2, 11, 1),
    Sketcher.Constraint("Tangent", 11, 2, 4, 1),
    Sketcher.Constraint("Vertical", 0),
    Sketcher.Constraint("Horizontal", 1),
    Sketcher.Constraint("Vertical", 2),
    Sketcher.Constraint("Horizontal", 3),
    Sketcher.Constraint("Horizontal", 4),
    Sketcher.Constraint("Vertical", 6),
    Sketcher.Constraint("Horizontal", 8),
    Sketcher.Constraint("Vertical", 10),
    Sketcher.Constraint("Equal", 5, 7),
    Sketcher.Constraint("Equal", 7, 9),
    Sketcher.Constraint("Equal", 9, 11),
    Sketcher.Constraint("Symmetric", 5, 3, 9, 3, -1, 1),
    Sketcher.Constraint("Symmetric", 0, 2, 2, 2, -1, 1),
    Sketcher.Constraint("Radius", 5, 5.0),
    Sketcher.Constraint("DistanceX", 1, 2, 1, 1, 216.0),
    Sketcher.Constraint("DistanceX", 4, 1, 4, 2, 200.0),
    Sketcher.Constraint("DistanceY", 0, 2, 5, 3, 8.0),
    Sketcher.Constraint("DistanceY", 0, 2, 0, 1, 220.25),
])
pad4 = body.newObject("PartDesign::Pad", "Pad003")
pad4.Profile = sketch10
pad4.Length = 3
pad4.Reversed = True
doc.recompute()

fillet6 = body.newObject("PartDesign::Fillet", "Fillet005")
fillet6.Base = (pad4, edges_at(pad4, [
    (108, 110.125, -11.5),
    (108, -110.125, -11.5),
    (-108, -110.125, -11.5),
    (-108, 110.125, -11.5),
]))
fillet6.Radius = 5

# Sketch on YZ plane
sketch11 = body.newObject("Sketcher::SketchObject", "Sketch010")
sketch11.AttachmentSupport = (doc.getObject("YZ_Plane"), [""])
sketch11.MapMode = "FlatFace"
sketch11.AttachmentOffset = App.Placement(App.Vector(0, 0, -110), App.Rotation())
sketch11.addGeometry([
    Part.Circle(App.Vector(87.1, 20, 0), App.Vector(0, 0, 1), 3.2),
    Part.Circle(App.Vector(-87.1, 20, 0), App.Vector(0, 0, 1), 3.2),
    Part.Circle(App.Vector(-87.1, 290, 0), App.Vector(0, 0, 1), 3.2),
    Part.Circle(App.Vector(87.1, 290, 0), App.Vector(0, 0, 1), 3.2),
], False)
sketch11.addConstraint([
    Sketcher.Constraint("Equal", 0, 1),
    Sketcher.Constraint("Equal", 1, 2),
    Sketcher.Constraint("Equal", 2, 3),
    Sketcher.Constraint("Symmetric", 0, 3, 1, 3, -2),
    Sketcher.Constraint("Symmetric", 2, 3, 3, 3, -2),
    Sketcher.Constraint("Vertical", 1, 3, 2, 3),
    Sketcher.Constraint("Diameter", 0, 6.4),
    Sketcher.Constraint("DistanceY", -1, 1, 0, 3, 20.0),
    Sketcher.Constraint("DistanceY", -1, 1, 2, 3, 290.0),
    Sketcher.Constraint("DistanceX", 1, 3, 0, 3, 174.25),
])
doc.recompute()
hole6 = body.newObject("PartDesign::Hole", "Hole005")
hole6.Profile = sketch11
hole6.ThreadType = "None"
hole6.Diameter = 6.4
hole6.DepthType = "Dimension"
hole6.Depth = 5
hole6.DrillPoint = "Flat"
hole6.Reversed = True

# Sketch on XZ plane
sketch12 = body.newObject("Sketcher::SketchObject", "Sketch011")
sketch12.AttachmentSupport = (doc.getObject("XZ_Plane"), [""])
sketch12.MapMode = "FlatFace"
sketch12.AttachmentOffset = App.Placement(App.Vector(0, 0, 107.125), App.Rotation())
sketch12.addGeometry([
    Part.Circle(App.Vector(-15, 11.6, 0), App.Vector(0, 0, 1), 2.1),
    Part.Circle(App.Vector(15, 11.6, 0), App.Vector(0, 0, 1), 2.1),
    Part.Circle(App.Vector(15, 41.5, 0), App.Vector(0, 0, 1), 2.1),
    Part.Circle(App.Vector(-15, 41.5, 0), App.Vector(0, 0, 1), 2.1),
], False)
sketch12.addConstraint([
    Sketcher.Constraint("Equal", 0, 1),
    Sketcher.Constraint("Equal", 1, 2),
    Sketcher.Constraint("Equal", 2, 3),
    Sketcher.Constraint("Symmetric", 0, 3, 1, 3, -2),
    Sketcher.Constraint("Symmetric", 2, 3, 3, 3, -2),
    Sketcher.Constraint("Vertical", 1, 3, 2, 3),
    Sketcher.Constraint("Diameter", 0, 4.2),
    Sketcher.Constraint("DistanceX", 0, 3, -1, 1, 15.0),
    Sketcher.Constraint("DistanceY", 1, 3, 2, 3, 30.0),
    Sketcher.Constraint("DistanceY", -1, 1, 0, 3, 11.55),
])
doc.recompute()
hole7 = body.newObject("PartDesign::Hole", "Hole006")
hole7.Profile = sketch12
hole7.ThreadType = "None"
hole7.Diameter = 4.2
hole7.DepthType = "Dimension"
hole7.Depth = 5
hole7.DrillPoint = "Flat"
hole7.Reversed = True

doc.recompute()
